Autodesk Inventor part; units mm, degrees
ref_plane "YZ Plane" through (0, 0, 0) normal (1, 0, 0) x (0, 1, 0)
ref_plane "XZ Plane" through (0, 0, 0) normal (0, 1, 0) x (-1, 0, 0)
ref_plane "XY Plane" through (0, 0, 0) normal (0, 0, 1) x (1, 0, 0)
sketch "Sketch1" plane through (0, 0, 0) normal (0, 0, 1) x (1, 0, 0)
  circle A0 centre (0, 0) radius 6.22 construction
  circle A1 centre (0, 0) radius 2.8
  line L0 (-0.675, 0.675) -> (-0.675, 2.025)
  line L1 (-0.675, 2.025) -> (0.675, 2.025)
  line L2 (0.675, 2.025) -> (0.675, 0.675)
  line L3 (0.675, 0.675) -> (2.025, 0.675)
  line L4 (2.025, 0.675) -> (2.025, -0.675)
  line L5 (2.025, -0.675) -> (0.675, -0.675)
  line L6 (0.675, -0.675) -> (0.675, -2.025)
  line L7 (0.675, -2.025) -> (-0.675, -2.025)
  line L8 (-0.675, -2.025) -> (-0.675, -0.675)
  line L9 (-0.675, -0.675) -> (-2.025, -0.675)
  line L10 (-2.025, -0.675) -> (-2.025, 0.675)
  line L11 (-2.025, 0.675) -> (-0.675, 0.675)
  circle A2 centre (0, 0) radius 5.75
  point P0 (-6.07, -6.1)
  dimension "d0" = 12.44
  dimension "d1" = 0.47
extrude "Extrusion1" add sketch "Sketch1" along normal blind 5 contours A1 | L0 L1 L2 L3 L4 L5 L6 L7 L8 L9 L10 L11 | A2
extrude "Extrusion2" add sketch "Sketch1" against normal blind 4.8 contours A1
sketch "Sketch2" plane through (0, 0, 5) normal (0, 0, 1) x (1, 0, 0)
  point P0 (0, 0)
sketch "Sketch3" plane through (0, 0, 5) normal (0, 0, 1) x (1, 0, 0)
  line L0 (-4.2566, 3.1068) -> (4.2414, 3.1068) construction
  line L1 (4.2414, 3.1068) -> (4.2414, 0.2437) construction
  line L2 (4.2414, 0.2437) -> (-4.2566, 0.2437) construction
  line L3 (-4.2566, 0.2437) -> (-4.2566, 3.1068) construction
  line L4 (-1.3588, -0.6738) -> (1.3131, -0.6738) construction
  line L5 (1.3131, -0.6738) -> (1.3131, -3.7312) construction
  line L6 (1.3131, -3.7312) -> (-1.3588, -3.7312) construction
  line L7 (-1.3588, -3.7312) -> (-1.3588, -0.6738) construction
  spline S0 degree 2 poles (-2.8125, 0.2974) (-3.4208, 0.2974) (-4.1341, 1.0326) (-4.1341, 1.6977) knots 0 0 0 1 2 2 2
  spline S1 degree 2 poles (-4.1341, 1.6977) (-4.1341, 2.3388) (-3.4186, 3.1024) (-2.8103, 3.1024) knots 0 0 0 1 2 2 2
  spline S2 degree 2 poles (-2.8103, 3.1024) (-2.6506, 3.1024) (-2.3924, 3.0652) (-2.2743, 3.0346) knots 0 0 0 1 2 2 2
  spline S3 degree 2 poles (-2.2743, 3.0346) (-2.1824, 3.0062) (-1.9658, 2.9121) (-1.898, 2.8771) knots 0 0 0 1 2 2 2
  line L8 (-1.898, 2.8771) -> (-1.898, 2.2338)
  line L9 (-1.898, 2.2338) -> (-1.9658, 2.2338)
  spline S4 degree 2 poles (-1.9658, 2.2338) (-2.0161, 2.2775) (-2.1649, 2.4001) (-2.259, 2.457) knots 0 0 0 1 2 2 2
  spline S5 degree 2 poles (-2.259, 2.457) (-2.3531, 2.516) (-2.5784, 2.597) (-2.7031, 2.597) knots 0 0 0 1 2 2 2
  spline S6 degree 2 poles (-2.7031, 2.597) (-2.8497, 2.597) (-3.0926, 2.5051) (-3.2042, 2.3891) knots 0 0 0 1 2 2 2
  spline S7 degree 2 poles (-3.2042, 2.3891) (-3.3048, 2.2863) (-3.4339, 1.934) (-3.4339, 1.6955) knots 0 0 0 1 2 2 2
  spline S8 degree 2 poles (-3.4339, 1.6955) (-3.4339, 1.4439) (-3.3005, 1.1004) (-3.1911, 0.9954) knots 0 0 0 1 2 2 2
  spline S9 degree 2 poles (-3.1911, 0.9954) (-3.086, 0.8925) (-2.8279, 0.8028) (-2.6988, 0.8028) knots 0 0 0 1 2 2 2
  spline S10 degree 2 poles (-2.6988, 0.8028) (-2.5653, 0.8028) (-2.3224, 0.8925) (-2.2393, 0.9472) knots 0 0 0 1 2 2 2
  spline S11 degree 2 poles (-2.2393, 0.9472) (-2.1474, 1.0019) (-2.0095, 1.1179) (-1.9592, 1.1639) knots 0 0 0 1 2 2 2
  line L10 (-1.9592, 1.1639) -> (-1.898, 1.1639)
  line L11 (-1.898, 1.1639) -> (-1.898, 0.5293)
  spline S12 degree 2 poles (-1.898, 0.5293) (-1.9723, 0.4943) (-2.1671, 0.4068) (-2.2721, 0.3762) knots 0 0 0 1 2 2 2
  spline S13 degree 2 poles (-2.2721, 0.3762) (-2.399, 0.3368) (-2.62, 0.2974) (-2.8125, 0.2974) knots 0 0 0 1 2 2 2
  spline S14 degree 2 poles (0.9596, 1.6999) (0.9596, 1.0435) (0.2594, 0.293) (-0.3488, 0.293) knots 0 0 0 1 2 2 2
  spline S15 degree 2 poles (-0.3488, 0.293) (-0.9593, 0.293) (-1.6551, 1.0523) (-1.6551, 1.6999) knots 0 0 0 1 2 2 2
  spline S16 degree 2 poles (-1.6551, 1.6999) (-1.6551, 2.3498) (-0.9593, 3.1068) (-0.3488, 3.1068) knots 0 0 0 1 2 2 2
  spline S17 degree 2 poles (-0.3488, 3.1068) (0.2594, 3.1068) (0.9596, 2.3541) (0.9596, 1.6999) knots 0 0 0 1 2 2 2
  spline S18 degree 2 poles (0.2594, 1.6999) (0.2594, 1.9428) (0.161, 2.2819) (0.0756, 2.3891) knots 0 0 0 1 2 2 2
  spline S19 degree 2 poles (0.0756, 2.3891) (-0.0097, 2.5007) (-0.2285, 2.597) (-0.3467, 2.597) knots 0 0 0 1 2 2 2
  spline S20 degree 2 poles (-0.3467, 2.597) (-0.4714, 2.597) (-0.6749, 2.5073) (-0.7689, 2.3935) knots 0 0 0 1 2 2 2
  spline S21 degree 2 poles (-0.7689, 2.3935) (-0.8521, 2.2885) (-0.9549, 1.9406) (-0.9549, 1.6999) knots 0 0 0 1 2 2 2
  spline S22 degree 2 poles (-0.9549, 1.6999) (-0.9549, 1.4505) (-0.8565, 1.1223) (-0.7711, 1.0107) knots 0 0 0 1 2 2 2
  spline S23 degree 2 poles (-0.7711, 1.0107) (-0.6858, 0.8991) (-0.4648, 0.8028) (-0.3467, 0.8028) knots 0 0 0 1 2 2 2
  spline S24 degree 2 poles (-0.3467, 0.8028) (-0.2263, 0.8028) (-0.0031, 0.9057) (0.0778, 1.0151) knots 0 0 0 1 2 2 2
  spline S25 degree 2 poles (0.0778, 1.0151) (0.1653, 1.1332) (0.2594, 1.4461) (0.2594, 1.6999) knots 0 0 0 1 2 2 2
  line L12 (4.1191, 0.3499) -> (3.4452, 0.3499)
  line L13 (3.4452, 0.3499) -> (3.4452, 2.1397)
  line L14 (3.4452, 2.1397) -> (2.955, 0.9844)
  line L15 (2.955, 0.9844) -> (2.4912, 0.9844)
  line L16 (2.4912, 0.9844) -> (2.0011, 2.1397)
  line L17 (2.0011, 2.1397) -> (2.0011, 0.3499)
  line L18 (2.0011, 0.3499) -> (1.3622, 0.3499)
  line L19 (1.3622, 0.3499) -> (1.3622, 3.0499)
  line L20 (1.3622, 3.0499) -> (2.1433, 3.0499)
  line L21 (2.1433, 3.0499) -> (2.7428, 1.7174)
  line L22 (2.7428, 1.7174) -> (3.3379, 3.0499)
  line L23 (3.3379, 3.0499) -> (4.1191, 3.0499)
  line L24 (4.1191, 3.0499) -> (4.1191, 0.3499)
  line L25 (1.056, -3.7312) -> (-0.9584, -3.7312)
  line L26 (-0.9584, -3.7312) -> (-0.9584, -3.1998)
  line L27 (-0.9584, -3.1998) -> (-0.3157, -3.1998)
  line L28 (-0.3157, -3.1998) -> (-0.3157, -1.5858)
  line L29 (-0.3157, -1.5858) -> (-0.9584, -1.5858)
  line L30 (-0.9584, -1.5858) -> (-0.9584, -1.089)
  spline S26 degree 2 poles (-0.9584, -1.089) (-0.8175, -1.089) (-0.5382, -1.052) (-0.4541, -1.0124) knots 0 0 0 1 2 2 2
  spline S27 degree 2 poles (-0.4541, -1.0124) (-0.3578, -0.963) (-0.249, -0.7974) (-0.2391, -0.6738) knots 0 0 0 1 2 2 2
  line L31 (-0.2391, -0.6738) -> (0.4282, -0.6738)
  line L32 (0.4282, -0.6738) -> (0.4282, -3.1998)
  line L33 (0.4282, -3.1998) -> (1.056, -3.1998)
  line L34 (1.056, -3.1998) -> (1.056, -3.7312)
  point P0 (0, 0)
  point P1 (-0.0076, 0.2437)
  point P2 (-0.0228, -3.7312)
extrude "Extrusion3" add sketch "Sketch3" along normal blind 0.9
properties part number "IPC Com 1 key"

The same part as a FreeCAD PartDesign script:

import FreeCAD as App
import Part
import Sketcher

V = App.Vector
Q = App.Units.Quantity

doc = App.newDocument("Part")
body = doc.addObject("PartDesign::Body", "Body")

# Sketch on XY plane
sketch1 = body.newObject("Sketcher::SketchObject", "Sketch")
sketch1.AttachmentSupport = (doc.getObject("XY_Plane"), [""])
sketch1.MapMode = "FlatFace"
sketch1.addGeometry(Part.Circle(V(0, 0, 0), V(0, 0, 1), 5.75), False)
sketch1.addConstraint(Sketcher.Constraint("Coincident", 0, 3, -1, 1))
sketch1.addConstraint(Sketcher.Constraint("Diameter", 0, Q("11.5 mm")))
pad1 = body.newObject("PartDesign::Pad", "Pad")
pad1.Profile = sketch1
pad1.Length = 5

# Sketch on XY plane
sketch2 = body.newObject("Sketcher::SketchObject", "Sketch001")
sketch2.AttachmentSupport = (doc.getObject("XY_Plane"), [""])
sketch2.MapMode = "FlatFace"
sketch2.addGeometry(Part.Circle(V(0, 0, 0), V(0, 0, 1), 2.8), False)
sketch2.addGeometry(Part.LineSegment(V(-2.025, 0.675, 0), V(-0.675, 0.675, 0)), False)
sketch2.addGeometry(Part.LineSegment(V(-0.675, 0.675, 0), V(-0.675, 2.025, 0)), False)
sketch2.addGeometry(Part.LineSegment(V(-0.675, 2.025, 0), V(0.675, 2.025, 0)), False)
sketch2.addGeometry(Part.LineSegment(V(0.675, 2.025, 0), V(0.675, 0.675, 0)), False)
sketch2.addGeometry(Part.LineSegment(V(0.675, 0.675, 0), V(2.025, 0.675, 0)), False)
sketch2.addGeometry(Part.LineSegment(V(2.025, 0.675, 0), V(2.025, -0.675, 0)), False)
sketch2.addGeometry(Part.LineSegment(V(2.025, -0.675, 0), V(0.675, -0.675, 0)), False)
sketch2.addGeometry(Part.LineSegment(V(0.675, -0.675, 0), V(0.675, -2.025, 0)), False)
sketch2.addGeometry(Part.LineSegment(V(0.675, -2.025, 0), V(-0.675, -2.025, 0)), False)
sketch2.addGeometry(Part.LineSegment(V(-0.675, -2.025, 0), V(-0.675, -0.675, 0)), False)
sketch2.addGeometry(Part.LineSegment(V(-0.675, -0.675, 0), V(-2.025, -0.675, 0)), False)
sketch2.addGeometry(Part.LineSegment(V(-2.025, -0.675, 0), V(-2.025, 0.675, 0)), False)
sketch2.addConstraint(Sketcher.Constraint("Coincident", 1, 2, 2, 1))
sketch2.addConstraint(Sketcher.Constraint("Coincident", 2, 2, 3, 1))
sketch2.addConstraint(Sketcher.Constraint("Coincident", 3, 2, 4, 1))
sketch2.addConstraint(Sketcher.Constraint("Coincident", 4, 2, 5, 1))
sketch2.addConstraint(Sketcher.Constraint("Coincident", 5, 2, 6, 1))
sketch2.addConstraint(Sketcher.Constraint("Coincident", 6, 2, 7, 1))
sketch2.addConstraint(Sketcher.Constraint("Coincident", 7, 2, 8, 1))
sketch2.addConstraint(Sketcher.Constraint("Coincident", 8, 2, 9, 1))
sketch2.addConstraint(Sketcher.Constraint("Coincident", 9, 2, 10, 1))
sketch2.addConstraint(Sketcher.Constraint("Coincident", 10, 2, 11, 1))
sketch2.addConstraint(Sketcher.Constraint("Coincident", 11, 2, 12, 1))
sketch2.addConstraint(Sketcher.Constraint("Coincident", 12, 2, 1, 1))
sketch2.addConstraint(Sketcher.Constraint("Horizontal", 1))
sketch2.addConstraint(Sketcher.Constraint("Vertical", 2))
sketch2.addConstraint(Sketcher.Constraint("Horizontal", 3))
sketch2.addConstraint(Sketcher.Constraint("Vertical", 4))
sketch2.addConstraint(Sketcher.Constraint("Horizontal", 5))
sketch2.addConstraint(Sketcher.Constraint("Vertical", 6))
sketch2.addConstraint(Sketcher.Constraint("Horizontal", 7))
sketch2.addConstraint(Sketcher.Constraint("Vertical", 8))
sketch2.addConstraint(Sketcher.Constraint("Horizontal", 9))
sketch2.addConstraint(Sketcher.Constraint("Vertical", 10))
sketch2.addConstraint(Sketcher.Constraint("Horizontal", 11))
sketch2.addConstraint(Sketcher.Constraint("Vertical", 12))
sketch2.addConstraint(Sketcher.Constraint("Coincident", 0, 3, -1, 1))
sketch2.addConstraint(Sketcher.Constraint("Symmetric", 1, 2, 7, 2, -1, 1))
sketch2.addConstraint(Sketcher.Constraint("Symmetric", 3, 2, 9, 2, -1, 1))
sketch2.addConstraint(Sketcher.Constraint("Symmetric", 5, 2, 11, 2, -1, 1))
sketch2.addConstraint(Sketcher.Constraint("Symmetric", 1, 2, 4, 2, -2))
sketch2.addConstraint(Sketcher.Constraint("Equal", 1, 3))
sketch2.addConstraint(Sketcher.Constraint("Equal", 11, 2))
sketch2.addConstraint(Sketcher.Constraint("Equal", 4, 6))
sketch2.addConstraint(Sketcher.Constraint("Diameter", 0, Q("5.6 mm")))
sketch2.addConstraint(Sketcher.Constraint("DistanceX", 1, 1, 1, 2, Q("1.35 mm")))
pad2 = body.newObject("PartDesign::Pad", "Pad001")
pad2.Profile = sketch2
pad2.Length = 4.8
pad2.Reversed = True

# Sketch on XY plane
sketch3 = body.newObject("Sketcher::SketchObject", "Sketch002")
sketch3.AttachmentSupport = (doc.getObject("XY_Plane"), [""])
sketch3.MapMode = "FlatFace"
sketch3.AttachmentOffset = App.Placement(V(0, 0, 5), App.Rotation())
sketch3.addGeometry(Part.BSplineCurve([V(-2.8125, 0.2974, 0), V(-3.4208, 0.2974, 0), V(-4.1341, 1.0326, 0), V(-4.1341, 1.6977, 0)], [3, 1, 3], [0, 1, 2], False, 2, [1, 1, 1, 1], False), False)
sketch3.addGeometry(Part.BSplineCurve([V(-2.2721, 0.3762, 0), V(-2.399, 0.3368, 0), V(-2.62, 0.2974, 0), V(-2.8125, 0.2974, 0)], [3, 1, 3], [0, 1, 2], False, 2, [1, 1, 1, 1], False), False)
sketch3.addGeometry(Part.BSplineCurve([V(-1.898, 0.5293, 0), V(-1.9723, 0.4943, 0), V(-2.1671, 0.4068, 0), V(-2.2721, 0.3762, 0)], [3, 1, 3], [0, 1, 2], False, 2, [1, 1, 1, 1], False), False)
sketch3.addGeometry(Part.LineSegment(V(-1.898, 0.5293, 0), V(-1.898, 1.1639, 0)), False)
sketch3.addGeometry(Part.LineSegment(V(-1.898, 1.1639, 0), V(-1.9592, 1.1639, 0)), False)
sketch3.addGeometry(Part.BSplineCurve([V(-2.2393, 0.9472, 0), V(-2.1474, 1.0019, 0), V(-2.0095, 1.1179, 0), V(-1.9592, 1.1639, 0)], [3, 1, 3], [0, 1, 2], False, 2, [1, 1, 1, 1], False), False)
sketch3.addGeometry(Part.BSplineCurve([V(-2.6988, 0.8028, 0), V(-2.5653, 0.8028, 0), V(-2.3224, 0.8925, 0), V(-2.2393, 0.9472, 0)], [3, 1, 3], [0, 1, 2], False, 2, [1, 1, 1, 1], False), False)
sketch3.addGeometry(Part.BSplineCurve([V(-3.1911, 0.9954, 0), V(-3.086, 0.8925, 0), V(-2.8279, 0.8028, 0), V(-2.6988, 0.8028, 0)], [3, 1, 3], [0, 1, 2], False, 2, [1, 1, 1, 1], False), False)
sketch3.addGeometry(Part.BSplineCurve([V(-3.4339, 1.6955, 0), V(-3.4339, 1.4439, 0), V(-3.3005, 1.1004, 0), V(-3.1911, 0.9954, 0)], [3, 1, 3], [0, 1, 2], False, 2, [1, 1, 1, 1], False), False)
sketch3.addGeometry(Part.BSplineCurve([V(-3.2042, 2.3891, 0), V(-3.3048, 2.2863, 0), V(-3.4339, 1.934, 0), V(-3.4339, 1.6955, 0)], [3, 1, 3], [0, 1, 2], False, 2, [1, 1, 1, 1], False), False)
sketch3.addGeometry(Part.BSplineCurve([V(-2.7031, 2.597, 0), V(-2.8497, 2.597, 0), V(-3.0926, 2.5051, 0), V(-3.2042, 2.3891, 0)], [3, 1, 3], [0, 1, 2], False, 2, [1, 1, 1, 1], False), False)
sketch3.addGeometry(Part.BSplineCurve([V(-2.259, 2.457, 0), V(-2.3531, 2.516, 0), V(-2.5784, 2.597, 0), V(-2.7031, 2.597, 0)], [3, 1, 3], [0, 1, 2], False, 2, [1, 1, 1, 1], False), False)
sketch3.addGeometry(Part.BSplineCurve([V(-1.9658, 2.2338, 0), V(-2.0161, 2.2775, 0), V(-2.1649, 2.4001, 0), V(-2.259, 2.457, 0)], [3, 1, 3], [0, 1, 2], False, 2, [1, 1, 1, 1], False), False)
sketch3.addGeometry(Part.LineSegment(V(-1.9658, 2.2338, 0), V(-1.898, 2.2338, 0)), False)
sketch3.addGeometry(Part.LineSegment(V(-1.898, 2.2338, 0), V(-1.898, 2.8771, 0)), False)
sketch3.addGeometry(Part.BSplineCurve([V(-2.2743, 3.0346, 0), V(-2.1824, 3.0062, 0), V(-1.9658, 2.9121, 0), V(-1.898, 2.8771, 0)], [3, 1, 3], [0, 1, 2], False, 2, [1, 1, 1, 1], False), False)
sketch3.addGeometry(Part.BSplineCurve([V(-2.8103, 3.1024, 0), V(-2.6506, 3.1024, 0), V(-2.3924, 3.0652, 0), V(-2.2743, 3.0346, 0)], [3, 1, 3], [0, 1, 2], False, 2, [1, 1, 1, 1], False), False)
sketch3.addGeometry(Part.BSplineCurve([V(-4.1341, 1.6977, 0), V(-4.1341, 2.3388, 0), V(-3.4186, 3.1024, 0), V(-2.8103, 3.1024, 0)], [3, 1, 3], [0, 1, 2], False, 2, [1, 1, 1, 1], False), False)
sketch3.addGeometry(Part.BSplineCurve([V(0.9596, 1.6999, 0), V(0.9596, 1.0435, 0), V(0.2594, 0.293, 0), V(-0.3488, 0.293, 0)], [3, 1, 3], [0, 1, 2], False, 2, [1, 1, 1, 1], False), False)
sketch3.addGeometry(Part.BSplineCurve([V(-0.3488, 3.1068, 0), V(0.2594, 3.1068, 0), V(0.9596, 2.3541, 0), V(0.9596, 1.6999, 0)], [3, 1, 3], [0, 1, 2], False, 2, [1, 1, 1, 1], False), False)
sketch3.addGeometry(Part.BSplineCurve([V(-1.6551, 1.6999, 0), V(-1.6551, 2.3498, 0), V(-0.9593, 3.1068, 0), V(-0.3488, 3.1068, 0)], [3, 1, 3], [0, 1, 2], False, 2, [1, 1, 1, 1], False), False)
sketch3.addGeometry(Part.BSplineCurve([V(-0.3488, 0.293, 0), V(-0.9593, 0.293, 0), V(-1.6551, 1.0523, 0), V(-1.6551, 1.6999, 0)], [3, 1, 3], [0, 1, 2], False, 2, [1, 1, 1, 1], False), False)
sketch3.addGeometry(Part.BSplineCurve([V(0.2594, 1.6999, 0), V(0.2594, 1.9428, 0), V(0.161, 2.2819, 0), V(0.0756, 2.3891, 0)], [3, 1, 3], [0, 1, 2], False, 2, [1, 1, 1, 1], False), False)
sketch3.addGeometry(Part.BSplineCurve([V(0.0778, 1.0151, 0), V(0.1653, 1.1332, 0), V(0.2594, 1.4461, 0), V(0.2594, 1.6999, 0)], [3, 1, 3], [0, 1, 2], False, 2, [1, 1, 1, 1], False), False)
sketch3.addGeometry(Part.BSplineCurve([V(-0.3467, 0.8028, 0), V(-0.2263, 0.8028, 0), V(-0.0031, 0.9057, 0), V(0.0778, 1.0151, 0)], [3, 1, 3], [0, 1, 2], False, 2, [1, 1, 1, 1], False), False)
sketch3.addGeometry(Part.BSplineCurve([V(-0.7711, 1.0107, 0), V(-0.6858, 0.8991, 0), V(-0.4648, 0.8028, 0), V(-0.3467, 0.8028, 0)], [3, 1, 3], [0, 1, 2], False, 2, [1, 1, 1, 1], False), False)
sketch3.addGeometry(Part.BSplineCurve([V(-0.9549, 1.6999, 0), V(-0.9549, 1.4505, 0), V(-0.8565, 1.1223, 0), V(-0.7711, 1.0107, 0)], [3, 1, 3], [0, 1, 2], False, 2, [1, 1, 1, 1], False), False)
sketch3.addGeometry(Part.BSplineCurve([V(-0.7689, 2.3935, 0), V(-0.8521, 2.2885, 0), V(-0.9549, 1.9406, 0), V(-0.9549, 1.6999, 0)], [3, 1, 3], [0, 1, 2], False, 2, [1, 1, 1, 1], False), False)
sketch3.addGeometry(Part.BSplineCurve([V(-0.3467, 2.597, 0), V(-0.4714, 2.597, 0), V(-0.6749, 2.5073, 0), V(-0.7689, 2.3935, 0)], [3, 1, 3], [0, 1, 2], False, 2, [1, 1, 1, 1], False), False)
sketch3.addGeometry(Part.BSplineCurve([V(0.0756, 2.3891, 0), V(-0.0097, 2.5007, 0), V(-0.2285, 2.597, 0), V(-0.3467, 2.597, 0)], [3, 1, 3], [0, 1, 2], False, 2, [1, 1, 1, 1], False), False)
sketch3.addGeometry(Part.LineSegment(V(3.4452, 0.3499, 0), V(4.1191, 0.3499, 0)), False)
sketch3.addGeometry(Part.LineSegment(V(4.1191, 0.3499, 0), V(4.1191, 3.0499, 0)), False)
sketch3.addGeometry(Part.LineSegment(V(4.1191, 3.0499, 0), V(3.3379, 3.0499, 0)), False)
sketch3.addGeometry(Part.LineSegment(V(3.3379, 3.0499, 0), V(2.7428, 1.7174, 0)), False)
sketch3.addGeometry(Part.LineSegment(V(2.7428, 1.7174, 0), V(2.1433, 3.0499, 0)), False)
sketch3.addGeometry(Part.LineSegment(V(2.1433, 3.0499, 0), V(1.3622, 3.0499, 0)), False)
sketch3.addGeometry(Part.LineSegment(V(1.3622, 3.0499, 0), V(1.3622, 0.3499, 0)), False)
sketch3.addGeometry(Part.LineSegment(V(1.3622, 0.3499, 0), V(2.0011, 0.3499, 0)), False)
sketch3.addGeometry(Part.LineSegment(V(2.0011, 0.3499, 0), V(2.0011, 2.1397, 0)), False)
sketch3.addGeometry(Part.LineSegment(V(2.0011, 2.1397, 0), V(2.4912, 0.9844, 0)), False)
sketch3.addGeometry(Part.LineSegment(V(2.4912, 0.9844, 0), V(2.955, 0.9844, 0)), False)
sketch3.addGeometry(Part.LineSegment(V(2.955, 0.9844, 0), V(3.4452, 2.1397, 0)), False)
sketch3.addGeometry(Part.LineSegment(V(3.4452, 2.1397, 0), V(3.4452, 0.3499, 0)), False)
sketch3.addGeometry(Part.LineSegment(V(-0.9584, -3.7312, 0), V(1.056, -3.7312, 0)), False)
sketch3.addGeometry(Part.LineSegment(V(1.056, -3.7312, 0), V(1.056, -3.1998, 0)), False)
sketch3.addGeometry(Part.LineSegment(V(1.056, -3.1998, 0), V(0.4282, -3.1998, 0)), False)
sketch3.addGeometry(Part.LineSegment(V(0.4282, -3.1998, 0), V(0.4282, -0.6738, 0)), False)
sketch3.addGeometry(Part.LineSegment(V(0.4282, -0.6738, 0), V(-0.2391, -0.6738, 0)), False)
sketch3.addGeometry(Part.BSplineCurve([V(-0.4541, -1.0124, 0), V(-0.3578, -0.963, 0), V(-0.249, -0.7974, 0), V(-0.2391, -0.6738, 0)], [3, 1, 3], [0, 1, 2], False, 2, [1, 1, 1, 1], False), False)
sketch3.addGeometry(Part.BSplineCurve([V(-0.9584, -1.089, 0), V(-0.8175, -1.089, 0), V(-0.5382, -1.052, 0), V(-0.4541, -1.0124, 0)], [3, 1, 3], [0, 1, 2], False, 2, [1, 1, 1, 1], False), False)
sketch3.addGeometry(Part.LineSegment(V(-0.9584, -1.089, 0), V(-0.9584, -1.5858, 0)), False)
sketch3.addGeometry(Part.LineSegment(V(-0.9584, -1.5858, 0), V(-0.3157, -1.5858, 0)), False)
sketch3.addGeometry(Part.LineSegment(V(-0.3157, -1.5858, 0), V(-0.3157, -3.1998, 0)), False)
sketch3.addGeometry(Part.LineSegment(V(-0.3157, -3.1998, 0), V(-0.9584, -3.1998, 0)), False)
sketch3.addGeometry(Part.LineSegment(V(-0.9584, -3.1998, 0), V(-0.9584, -3.7312, 0)), False)
sketch3.addConstraint(Sketcher.Constraint("Block", 0))
sketch3.addConstraint(Sketcher.Constraint("Block", 1))
sketch3.addConstraint(Sketcher.Constraint("Block", 2))
sketch3.addConstraint(Sketcher.Constraint("Block", 5))
sketch3.addConstraint(Sketcher.Constraint("Block", 6))
sketch3.addConstraint(Sketcher.Constraint("Block", 7))
sketch3.addConstraint(Sketcher.Constraint("Block", 8))
sketch3.addConstraint(Sketcher.Constraint("Block", 9))
sketch3.addConstraint(Sketcher.Constraint("Block", 10))
sketch3.addConstraint(Sketcher.Constraint("Block", 11))
sketch3.addConstraint(Sketcher.Constraint("Block", 12))
sketch3.addConstraint(Sketcher.Constraint("Block", 15))
sketch3.addConstraint(Sketcher.Constraint("Block", 16))
sketch3.addConstraint(Sketcher.Constraint("Block", 17))
sketch3.addConstraint(Sketcher.Constraint("Block", 18))
sketch3.addConstraint(Sketcher.Constraint("Block", 19))
sketch3.addConstraint(Sketcher.Constraint("Block", 20))
sketch3.addConstraint(Sketcher.Constraint("Block", 21))
sketch3.addConstraint(Sketcher.Constraint("Block", 22))
sketch3.addConstraint(Sketcher.Constraint("Block", 23))
sketch3.addConstraint(Sketcher.Constraint("Block", 24))
sketch3.addConstraint(Sketcher.Constraint("Block", 25))
sketch3.addConstraint(Sketcher.Constraint("Block", 26))
sketch3.addConstraint(Sketcher.Constraint("Block", 27))
sketch3.addConstraint(Sketcher.Constraint("Block", 28))
sketch3.addConstraint(Sketcher.Constraint("Block", 29))
sketch3.addConstraint(Sketcher.Constraint("Block", 48))
sketch3.addConstraint(Sketcher.Constraint("Block", 49))
sketch3.addConstraint(Sketcher.Constraint("Coincident", 2, 1, 3, 1))
sketch3.addConstraint(Sketcher.Constraint("Coincident", 3, 2, 4, 1))
sketch3.addConstraint(Sketcher.Constraint("Coincident", 4, 2, 5, 2))
sketch3.addConstraint(Sketcher.Constraint("Coincident", 12, 1, 13, 1))
sketch3.addConstraint(Sketcher.Constraint("Coincident", 13, 2, 14, 1))
sketch3.addConstraint(Sketcher.Constraint("Coincident", 14, 2, 15, 2))
sketch3.addConstraint(Sketcher.Constraint("Coincident", 30, 2, 31, 1))
sketch3.addConstraint(Sketcher.Constraint("Coincident", 31, 2, 32, 1))
sketch3.addConstraint(Sketcher.Constraint("Coincident", 32, 2, 33, 1))
sketch3.addConstraint(Sketcher.Constraint("Coincident", 33, 2, 34, 1))
sketch3.addConstraint(Sketcher.Constraint("Coincident", 34, 2, 35, 1))
sketch3.addConstraint(Sketcher.Constraint("Coincident", 35, 2, 36, 1))
sketch3.addConstraint(Sketcher.Constraint("Coincident", 36, 2, 37, 1))
sketch3.addConstraint(Sketcher.Constraint("Coincident", 37, 2, 38, 1))
sketch3.addConstraint(Sketcher.Constraint("Coincident", 38, 2, 39, 1))
sketch3.addConstraint(Sketcher.Constraint("Coincident", 39, 2, 40, 1))
sketch3.addConstraint(Sketcher.Constraint("Coincident", 40, 2, 41, 1))
sketch3.addConstraint(Sketcher.Constraint("Coincident", 41, 2, 42, 1))
sketch3.addConstraint(Sketcher.Constraint("Coincident", 42, 2, 30, 1))
sketch3.addConstraint(Sketcher.Constraint("Coincident", 43, 2, 44, 1))
sketch3.addConstraint(Sketcher.Constraint("Coincident", 44, 2, 45, 1))
sketch3.addConstraint(Sketcher.Constraint("Coincident", 45, 2, 46, 1))
sketch3.addConstraint(Sketcher.Constraint("Coincident", 46, 2, 47, 1))
sketch3.addConstraint(Sketcher.Constraint("Coincident", 47, 2, 48, 2))
sketch3.addConstraint(Sketcher.Constraint("Coincident", 49, 1, 50, 1))
sketch3.addConstraint(Sketcher.Constraint("Coincident", 50, 2, 51, 1))
sketch3.addConstraint(Sketcher.Constraint("Coincident", 51, 2, 52, 1))
sketch3.addConstraint(Sketcher.Constraint("Coincident", 52, 2, 53, 1))
sketch3.addConstraint(Sketcher.Constraint("Coincident", 53, 2, 54, 1))
sketch3.addConstraint(Sketcher.Constraint("Coincident", 54, 2, 43, 1))
sketch3.addConstraint(Sketcher.Constraint("Vertical", 3))
sketch3.addConstraint(Sketcher.Constraint("Horizontal", 4))
sketch3.addConstraint(Sketcher.Constraint("Horizontal", 13))
sketch3.addConstraint(Sketcher.Constraint("Vertical", 14))
sketch3.addConstraint(Sketcher.Constraint("Horizontal", 30))
sketch3.addConstraint(Sketcher.Constraint("Vertical", 31))
sketch3.addConstraint(Sketcher.Constraint("Horizontal", 32))
sketch3.addConstraint(Sketcher.Constraint("Horizontal", 35))
sketch3.addConstraint(Sketcher.Constraint("Vertical", 36))
sketch3.addConstraint(Sketcher.Constraint("Horizontal", 37))
sketch3.addConstraint(Sketcher.Constraint("Vertical", 38))
sketch3.addConstraint(Sketcher.Constraint("Horizontal", 40))
sketch3.addConstraint(Sketcher.Constraint("Vertical", 42))
sketch3.addConstraint(Sketcher.Constraint("Horizontal", 43))
sketch3.addConstraint(Sketcher.Constraint("Vertical", 44))
sketch3.addConstraint(Sketcher.Constraint("Horizontal", 45))
sketch3.addConstraint(Sketcher.Constraint("Vertical", 46))
sketch3.addConstraint(Sketcher.Constraint("Horizontal", 47))
sketch3.addConstraint(Sketcher.Constraint("Vertical", 50))
sketch3.addConstraint(Sketcher.Constraint("Horizontal", 51))
sketch3.addConstraint(Sketcher.Constraint("Vertical", 52))
sketch3.addConstraint(Sketcher.Constraint("Horizontal", 53))
sketch3.addConstraint(Sketcher.Constraint("Vertical", 54))
sketch3.addConstraint(Sketcher.Constraint("Horizontal", 32, 2, 34, 2))
sketch3.addConstraint(Sketcher.Constraint("Horizontal", 30, 2, 36, 2))
sketch3.addConstraint(Sketcher.Constraint("Horizontal", 38, 2, 41, 2))
sketch3.addConstraint(Sketcher.Constraint("Horizontal", 45, 2, 52, 2))
sketch3.addConstraint(Sketcher.Constraint("Vertical", 50, 2, 53, 2))
sketch3.addConstraint(Sketcher.Constraint("Equal", 32, 35))
sketch3.addConstraint(Sketcher.Constraint("Equal", 39, 41))
sketch3.addConstraint(Sketcher.Constraint("DistanceY", 31, 1, 31, 2, Q("2.7 mm")))
sketch3.addConstraint(Sketcher.Constraint("DistanceX", 30, 1, 30, 2, Q("0.674 mm")))
sketch3.addConstraint(Sketcher.Constraint("DistanceX", 35, 2, 35, 1, Q("0.781 mm")))
sketch3.addConstraint(Sketcher.Constraint("DistanceX", 37, 1, 37, 2, Q("0.639 mm")))
sketch3.addConstraint(Sketcher.Constraint("DistanceY", 46, 1, 46, 2, Q("2.526 mm")))
sketch3.addConstraint(Sketcher.Constraint("DistanceY", 52, 2, 52, 1, Q("1.614 mm")))
sketch3.addConstraint(Sketcher.Constraint("DistanceY", -1, 1, 30, 2, Q("0.35 mm")))
sketch3.addConstraint(Sketcher.Constraint("DistanceX", 37, 2, 39, 2, Q("0.49 mm")))
sketch3.addConstraint(Sketcher.Constraint("Distance", 39, Q("1.255 mm")))
sketch3.addConstraint(Sketcher.Constraint("DistanceX", 40, 1, 40, 2, Q("0.4638 mm")))
sketch3.addConstraint(Sketcher.Constraint("DistanceX", 43, 1, 43, 2, Q("2.0144 mm")))
sketch3.addConstraint(Sketcher.Constraint("DistanceX", 45, 2, 45, 1, Q("0.6278 mm")))
sketch3.addConstraint(Sketcher.Constraint("DistanceX", 51, 1, 51, 2, Q("0.6427 mm")))
sketch3.addConstraint(Sketcher.Constraint("DistanceY", 38, 1, 38, 2, Q("1.7898 mm")))
sketch3.addConstraint(Sketcher.Constraint("DistanceY", 44, 1, 44, 2, Q("0.5314 mm")))
sketch3.addConstraint(Sketcher.Constraint("DistanceX", -1, 1, 30, 2, Q("4.119 mm")))
sketch3.addConstraint(Sketcher.Constraint("DistanceX", 33, 2, 32, 2, Q("0.595 mm")))
sketch3.addConstraint(Sketcher.Constraint("DistanceY", 39, 2, 33, 2, Q("0.733 mm")))
pad3 = body.newObject("PartDesign::Pad", "Pad002")
pad3.Profile = sketch3
pad3.Length = 0.9

doc.recompute()
